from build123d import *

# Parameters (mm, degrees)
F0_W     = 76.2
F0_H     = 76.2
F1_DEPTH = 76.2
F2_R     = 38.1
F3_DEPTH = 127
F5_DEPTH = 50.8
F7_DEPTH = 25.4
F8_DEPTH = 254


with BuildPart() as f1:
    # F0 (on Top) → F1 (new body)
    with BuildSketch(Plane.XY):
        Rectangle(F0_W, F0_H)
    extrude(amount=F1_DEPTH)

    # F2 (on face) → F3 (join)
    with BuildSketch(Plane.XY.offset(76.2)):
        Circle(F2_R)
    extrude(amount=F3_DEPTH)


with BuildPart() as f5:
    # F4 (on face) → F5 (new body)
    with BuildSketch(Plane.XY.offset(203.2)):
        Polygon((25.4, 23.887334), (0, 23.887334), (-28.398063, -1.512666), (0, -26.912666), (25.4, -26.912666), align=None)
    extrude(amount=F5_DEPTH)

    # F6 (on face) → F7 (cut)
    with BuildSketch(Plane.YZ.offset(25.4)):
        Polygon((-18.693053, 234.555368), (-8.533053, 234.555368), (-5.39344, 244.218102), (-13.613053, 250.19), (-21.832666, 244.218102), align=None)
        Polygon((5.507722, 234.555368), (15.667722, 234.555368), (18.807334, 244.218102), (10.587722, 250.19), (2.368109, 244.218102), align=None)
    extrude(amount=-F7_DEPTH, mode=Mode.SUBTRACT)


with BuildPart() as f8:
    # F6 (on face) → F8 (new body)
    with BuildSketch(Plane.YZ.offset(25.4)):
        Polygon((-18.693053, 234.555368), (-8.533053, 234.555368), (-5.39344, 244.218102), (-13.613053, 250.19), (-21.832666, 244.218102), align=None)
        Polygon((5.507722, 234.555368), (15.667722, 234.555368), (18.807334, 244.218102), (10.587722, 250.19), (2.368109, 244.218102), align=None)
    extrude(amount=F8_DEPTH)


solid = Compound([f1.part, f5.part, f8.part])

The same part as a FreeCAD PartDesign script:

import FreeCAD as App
import Part
import Sketcher
Q = App.Units.Quantity

doc = App.newDocument("Part")
body = doc.addObject("PartDesign::Body", "Body")

# Sketch on XY plane
sketch1 = doc.addObject("Sketcher::SketchObject", "Sketch")
body.addObject(sketch1)
sketch1.AttachmentSupport = (doc.XY_Plane, [""])
sketch1.MapMode = "FlatFace"
sketch1.addGeometry([
    Part.LineSegment(App.Vector(-38, 38, 0), App.Vector(-38, -38, 0)),
    Part.LineSegment(App.Vector(-38, -38, 0), App.Vector(38, -38, 0)),
    Part.LineSegment(App.Vector(38, -38, 0), App.Vector(38, 38, 0)),
    Part.LineSegment(App.Vector(38, 38, 0), App.Vector(-38, 38, 0)),
], False)
sketch1.addConstraint([
    Sketcher.Constraint("Coincident", 0, 2, 1, 1),
    Sketcher.Constraint("Coincident", 1, 2, 2, 1),
    Sketcher.Constraint("Coincident", 2, 2, 3, 1),
    Sketcher.Constraint("Coincident", 3, 2, 0, 1),
    Sketcher.Constraint("Vertical", 0),
    Sketcher.Constraint("Horizontal", 1),
    Sketcher.Constraint("Vertical", 2),
    Sketcher.Constraint("Horizontal", 3),
    Sketcher.Constraint("Symmetric", 0, 2, 2, 2, -1, 1),
    Sketcher.Constraint("Equal", 3, 0),
    Sketcher.Constraint("DistanceX", 1, 1, 1, 2, Q("3 in")),
])
pad1 = doc.addObject("PartDesign::Pad", "Pad")
body.addObject(pad1)
pad1.Profile = sketch1
pad1.Length = Q("3 in")

# Sketch on XY plane
sketch2 = doc.addObject("Sketcher::SketchObject", "Sketch001")
body.addObject(sketch2)
sketch2.AttachmentSupport = (doc.XY_Plane, [""])
sketch2.MapMode = "FlatFace"
sketch2.AttachmentOffset = App.Placement(App.Vector(0, 0, 3 * 25.4), App.Rotation())
sketch2.addGeometry(Part.Circle(App.Vector(0, 0, 0), App.Vector(0, 0, 1), 38), False)
sketch2.addConstraint([
    Sketcher.Constraint("Coincident", 0, 3, -1, 1),
    Sketcher.Constraint("Diameter", 0, Q("3 in")),
])
pad2 = doc.addObject("PartDesign::Pad", "Pad001")
body.addObject(pad2)
pad2.Profile = sketch2
pad2.Length = Q("5 in")
body2 = doc.addObject("PartDesign::Body", "Body001")

# Sketch on XY plane
sketch3 = doc.addObject("Sketcher::SketchObject", "Sketch002")
body2.addObject(sketch3)
sketch3.AttachmentSupport = (doc.getObject("XY_Plane001"), [""])
sketch3.MapMode = "FlatFace"
sketch3.AttachmentOffset = App.Placement(App.Vector(0, 0, 8 * 25.4), App.Rotation())
sketch3.addGeometry([
    Part.LineSegment(App.Vector(25, 24, 0), App.Vector(0, 24, 0)),  # 0
    Part.LineSegment(App.Vector(0, 24, 0), App.Vector(-28, -2, 0)),  # 1
    Part.LineSegment(App.Vector(-28, -2, 0), App.Vector(0, -27, 0)),  # 2
    Part.LineSegment(App.Vector(0, -27, 0), App.Vector(25, -27, 0)),  # 3
    Part.LineSegment(App.Vector(25, -27, 0), App.Vector(25, 24, 0)),  # 4
], False)
sketch3.addConstraint([
    Sketcher.Constraint("Coincident", 0, 2, 1, 1),
    Sketcher.Constraint("Coincident", 1, 2, 2, 1),
    Sketcher.Constraint("Coincident", 2, 2, 3, 1),
    Sketcher.Constraint("Coincident", 3, 2, 4, 1),
    Sketcher.Constraint("Coincident", 4, 2, 0, 1),
    Sketcher.Constraint("Horizontal", 0),
    Sketcher.Constraint("Horizontal", 3),
    Sketcher.Constraint("Vertical", 4),
    Sketcher.Constraint("PointOnObject", 0, 2, -2),
    Sketcher.Constraint("PointOnObject", 2, 2, -2),
    Sketcher.Constraint("Equal", 1, 2),
    Sketcher.Constraint("DistanceX", 0, 2, 0, 1, Q("1 in")),
    Sketcher.Constraint("DistanceY", 4, 1, 4, 2, Q("2 in")),
    Sketcher.Constraint("Distance", 1, Q("1.5 in")),
    Sketcher.Constraint("DistanceY", -1, 1, 0, 2, Q("23.887334 mm")),
])
pad3 = doc.addObject("PartDesign::Pad", "Pad002")
body2.addObject(pad3)
pad3.Profile = sketch3
pad3.Length = Q("2 in")

# Sketch on YZ plane
sketch4 = doc.addObject("Sketcher::SketchObject", "Sketch003")
body2.addObject(sketch4)
sketch4.AttachmentSupport = (doc.getObject("YZ_Plane001"), [""])
sketch4.MapMode = "FlatFace"
sketch4.AttachmentOffset = App.Placement(App.Vector(0, 0, 1 * 25.4), App.Rotation())
sketch4.addGeometry([
    Part.LineSegment(App.Vector(-19, 235, 0), App.Vector(-9, 235, 0)),  # 0
    Part.LineSegment(App.Vector(-9, 235, 0), App.Vector(-5, 244, 0)),  # 1
    Part.LineSegment(App.Vector(-5, 244, 0), App.Vector(-14, 250, 0)),  # 2
    Part.LineSegment(App.Vector(-14, 250, 0), App.Vector(-22, 244, 0)),  # 3
    Part.LineSegment(App.Vector(-22, 244, 0), App.Vector(-19, 235, 0)),  # 4
    Part.LineSegment(App.Vector(6, 235, 0), App.Vector(16, 235, 0)),  # 5
    Part.LineSegment(App.Vector(16, 235, 0), App.Vector(19, 244, 0)),  # 6
    Part.LineSegment(App.Vector(19, 244, 0), App.Vector(11, 250, 0)),  # 7
    Part.LineSegment(App.Vector(11, 250, 0), App.Vector(2, 244, 0)),  # 8
    Part.LineSegment(App.Vector(2, 244, 0), App.Vector(6, 235, 0)),  # 9
], False)
sketch4.addConstraint([
    Sketcher.Constraint("Coincident", 0, 2, 1, 1),
    Sketcher.Constraint("Coincident", 1, 2, 2, 1),
    Sketcher.Constraint("Coincident", 2, 2, 3, 1),
    Sketcher.Constraint("Coincident", 3, 2, 4, 1),
    Sketcher.Constraint("Coincident", 4, 2, 0, 1),
    Sketcher.Constraint("Coincident", 5, 2, 6, 1),
    Sketcher.Constraint("Coincident", 6, 2, 7, 1),
    Sketcher.Constraint("Coincident", 7, 2, 8, 1),
    Sketcher.Constraint("Coincident", 8, 2, 9, 1),
    Sketcher.Constraint("Coincident", 9, 2, 5, 1),
    Sketcher.Constraint("Horizontal", 0),
    Sketcher.Constraint("Horizontal", 5),
    Sketcher.Constraint("Parallel", 1, 6),
    Sketcher.Constraint("Parallel", 2, 7),
    Sketcher.Constraint("Parallel", 3, 8),
    Sketcher.Constraint("Parallel", 4, 9),
    Sketcher.Constraint("Horizontal", 1, 2, 3, 2),
    Sketcher.Constraint("Horizontal", 4, 2, 5, 2),
    Sketcher.Constraint("Horizontal", 3, 2, 6, 2),
    Sketcher.Constraint("Horizontal", 2, 2, 7, 2),
    Sketcher.Constraint("Horizontal", 6, 2, 8, 2),
    Sketcher.Constraint("Equal", 1, 2),
    Sketcher.Constraint("Equal", 2, 3),
    Sketcher.Constraint("Equal", 3, 4),
    Sketcher.Constraint("DistanceX", 0, 1, 0, 2, Q("0.4 in")),
    Sketcher.Constraint("Angle", 1, Q("71.999998 deg")),
    Sketcher.Constraint("Angle", 2, Q("144.000002 deg")),
    Sketcher.Constraint("DistanceY", -1, 1, 2, 2, Q("9.85 in")),
    Sketcher.Constraint("DistanceX", 1, 2, -1, 1, Q("5.39344 mm")),
    Sketcher.Constraint("DistanceX", -1, 1, 8, 2, Q("2.368109 mm")),
])
pocket1 = doc.addObject("PartDesign::Pocket", "Pocket")
body2.addObject(pocket1)
pocket1.Profile = sketch4
pocket1.Length = Q("1 in")
body3 = doc.addObject("PartDesign::Body", "Body002")
body3.AllowCompound = True

# Sketch on YZ plane
sketch5 = doc.addObject("Sketcher::SketchObject", "Sketch004")
body3.addObject(sketch5)
sketch5.AttachmentSupport = (doc.getObject("YZ_Plane002"), [""])
sketch5.MapMode = "FlatFace"
sketch5.AttachmentOffset = App.Placement(App.Vector(0, 0, 1 * 25.4), App.Rotation())
sketch5.addGeometry([
    Part.LineSegment(App.Vector(-19, 235, 0), App.Vector(-9, 235, 0)),  # 0
    Part.LineSegment(App.Vector(-9, 235, 0), App.Vector(-5, 244, 0)),  # 1
    Part.LineSegment(App.Vector(-5, 244, 0), App.Vector(-14, 250, 0)),  # 2
    Part.LineSegment(App.Vector(-14, 250, 0), App.Vector(-22, 244, 0)),  # 3
    Part.LineSegment(App.Vector(-22, 244, 0), App.Vector(-19, 235, 0)),  # 4
    Part.LineSegment(App.Vector(6, 235, 0), App.Vector(16, 235, 0)),  # 5
    Part.LineSegment(App.Vector(16, 235, 0), App.Vector(19, 244, 0)),  # 6
    Part.LineSegment(App.Vector(19, 244, 0), App.Vector(11, 250, 0)),  # 7
    Part.LineSegment(App.Vector(11, 250, 0), App.Vector(2, 244, 0)),  # 8
    Part.LineSegment(App.Vector(2, 244, 0), App.Vector(6, 235, 0)),  # 9
], False)
sketch5.addConstraint([
    Sketcher.Constraint("Coincident", 0, 2, 1, 1),
    Sketcher.Constraint("Coincident", 1, 2, 2, 1),
    Sketcher.Constraint("Coincident", 2, 2, 3, 1),
    Sketcher.Constraint("Coincident", 3, 2, 4, 1),
    Sketcher.Constraint("Coincident", 4, 2, 0, 1),
    Sketcher.Constraint("Coincident", 5, 2, 6, 1),
    Sketcher.Constraint("Coincident", 6, 2, 7, 1),
    Sketcher.Constraint("Coincident", 7, 2, 8, 1),
    Sketcher.Constraint("Coincident", 8, 2, 9, 1),
    Sketcher.Constraint("Coincident", 9, 2, 5, 1),
    Sketcher.Constraint("Horizontal", 0),
    Sketcher.Constraint("Horizontal", 5),
    Sketcher.Constraint("Parallel", 1, 6),
    Sketcher.Constraint("Parallel", 2, 7),
    Sketcher.Constraint("Parallel", 3, 8),
    Sketcher.Constraint("Parallel", 4, 9),
    Sketcher.Constraint("Horizontal", 1, 2, 3, 2),
    Sketcher.Constraint("Horizontal", 4, 2, 5, 2),
    Sketcher.Constraint("Horizontal", 3, 2, 6, 2),
    Sketcher.Constraint("Horizontal", 2, 2, 7, 2),
    Sketcher.Constraint("Horizontal", 6, 2, 8, 2),
    Sketcher.Constraint("Equal", 1, 2),
    Sketcher.Constraint("Equal", 2, 3),
    Sketcher.Constraint("Equal", 3, 4),
    Sketcher.Constraint("DistanceX", 0, 1, 0, 2, Q("0.4 in")),
    Sketcher.Constraint("Angle", 1, Q("71.999998 deg")),
    Sketcher.Constraint("Angle", 2, Q("144.000002 deg")),
    Sketcher.Constraint("DistanceY", -1, 1, 2, 2, Q("9.85 in")),
    Sketcher.Constraint("DistanceX", 1, 2, -1, 1, Q("5.39344 mm")),
    Sketcher.Constraint("DistanceX", -1, 1, 8, 2, Q("2.368109 mm")),
])
pad4 = doc.addObject("PartDesign::Pad", "Pad003")
body3.addObject(pad4)
pad4.Profile = sketch5
pad4.Length = Q("10 in")

doc.recompute()
